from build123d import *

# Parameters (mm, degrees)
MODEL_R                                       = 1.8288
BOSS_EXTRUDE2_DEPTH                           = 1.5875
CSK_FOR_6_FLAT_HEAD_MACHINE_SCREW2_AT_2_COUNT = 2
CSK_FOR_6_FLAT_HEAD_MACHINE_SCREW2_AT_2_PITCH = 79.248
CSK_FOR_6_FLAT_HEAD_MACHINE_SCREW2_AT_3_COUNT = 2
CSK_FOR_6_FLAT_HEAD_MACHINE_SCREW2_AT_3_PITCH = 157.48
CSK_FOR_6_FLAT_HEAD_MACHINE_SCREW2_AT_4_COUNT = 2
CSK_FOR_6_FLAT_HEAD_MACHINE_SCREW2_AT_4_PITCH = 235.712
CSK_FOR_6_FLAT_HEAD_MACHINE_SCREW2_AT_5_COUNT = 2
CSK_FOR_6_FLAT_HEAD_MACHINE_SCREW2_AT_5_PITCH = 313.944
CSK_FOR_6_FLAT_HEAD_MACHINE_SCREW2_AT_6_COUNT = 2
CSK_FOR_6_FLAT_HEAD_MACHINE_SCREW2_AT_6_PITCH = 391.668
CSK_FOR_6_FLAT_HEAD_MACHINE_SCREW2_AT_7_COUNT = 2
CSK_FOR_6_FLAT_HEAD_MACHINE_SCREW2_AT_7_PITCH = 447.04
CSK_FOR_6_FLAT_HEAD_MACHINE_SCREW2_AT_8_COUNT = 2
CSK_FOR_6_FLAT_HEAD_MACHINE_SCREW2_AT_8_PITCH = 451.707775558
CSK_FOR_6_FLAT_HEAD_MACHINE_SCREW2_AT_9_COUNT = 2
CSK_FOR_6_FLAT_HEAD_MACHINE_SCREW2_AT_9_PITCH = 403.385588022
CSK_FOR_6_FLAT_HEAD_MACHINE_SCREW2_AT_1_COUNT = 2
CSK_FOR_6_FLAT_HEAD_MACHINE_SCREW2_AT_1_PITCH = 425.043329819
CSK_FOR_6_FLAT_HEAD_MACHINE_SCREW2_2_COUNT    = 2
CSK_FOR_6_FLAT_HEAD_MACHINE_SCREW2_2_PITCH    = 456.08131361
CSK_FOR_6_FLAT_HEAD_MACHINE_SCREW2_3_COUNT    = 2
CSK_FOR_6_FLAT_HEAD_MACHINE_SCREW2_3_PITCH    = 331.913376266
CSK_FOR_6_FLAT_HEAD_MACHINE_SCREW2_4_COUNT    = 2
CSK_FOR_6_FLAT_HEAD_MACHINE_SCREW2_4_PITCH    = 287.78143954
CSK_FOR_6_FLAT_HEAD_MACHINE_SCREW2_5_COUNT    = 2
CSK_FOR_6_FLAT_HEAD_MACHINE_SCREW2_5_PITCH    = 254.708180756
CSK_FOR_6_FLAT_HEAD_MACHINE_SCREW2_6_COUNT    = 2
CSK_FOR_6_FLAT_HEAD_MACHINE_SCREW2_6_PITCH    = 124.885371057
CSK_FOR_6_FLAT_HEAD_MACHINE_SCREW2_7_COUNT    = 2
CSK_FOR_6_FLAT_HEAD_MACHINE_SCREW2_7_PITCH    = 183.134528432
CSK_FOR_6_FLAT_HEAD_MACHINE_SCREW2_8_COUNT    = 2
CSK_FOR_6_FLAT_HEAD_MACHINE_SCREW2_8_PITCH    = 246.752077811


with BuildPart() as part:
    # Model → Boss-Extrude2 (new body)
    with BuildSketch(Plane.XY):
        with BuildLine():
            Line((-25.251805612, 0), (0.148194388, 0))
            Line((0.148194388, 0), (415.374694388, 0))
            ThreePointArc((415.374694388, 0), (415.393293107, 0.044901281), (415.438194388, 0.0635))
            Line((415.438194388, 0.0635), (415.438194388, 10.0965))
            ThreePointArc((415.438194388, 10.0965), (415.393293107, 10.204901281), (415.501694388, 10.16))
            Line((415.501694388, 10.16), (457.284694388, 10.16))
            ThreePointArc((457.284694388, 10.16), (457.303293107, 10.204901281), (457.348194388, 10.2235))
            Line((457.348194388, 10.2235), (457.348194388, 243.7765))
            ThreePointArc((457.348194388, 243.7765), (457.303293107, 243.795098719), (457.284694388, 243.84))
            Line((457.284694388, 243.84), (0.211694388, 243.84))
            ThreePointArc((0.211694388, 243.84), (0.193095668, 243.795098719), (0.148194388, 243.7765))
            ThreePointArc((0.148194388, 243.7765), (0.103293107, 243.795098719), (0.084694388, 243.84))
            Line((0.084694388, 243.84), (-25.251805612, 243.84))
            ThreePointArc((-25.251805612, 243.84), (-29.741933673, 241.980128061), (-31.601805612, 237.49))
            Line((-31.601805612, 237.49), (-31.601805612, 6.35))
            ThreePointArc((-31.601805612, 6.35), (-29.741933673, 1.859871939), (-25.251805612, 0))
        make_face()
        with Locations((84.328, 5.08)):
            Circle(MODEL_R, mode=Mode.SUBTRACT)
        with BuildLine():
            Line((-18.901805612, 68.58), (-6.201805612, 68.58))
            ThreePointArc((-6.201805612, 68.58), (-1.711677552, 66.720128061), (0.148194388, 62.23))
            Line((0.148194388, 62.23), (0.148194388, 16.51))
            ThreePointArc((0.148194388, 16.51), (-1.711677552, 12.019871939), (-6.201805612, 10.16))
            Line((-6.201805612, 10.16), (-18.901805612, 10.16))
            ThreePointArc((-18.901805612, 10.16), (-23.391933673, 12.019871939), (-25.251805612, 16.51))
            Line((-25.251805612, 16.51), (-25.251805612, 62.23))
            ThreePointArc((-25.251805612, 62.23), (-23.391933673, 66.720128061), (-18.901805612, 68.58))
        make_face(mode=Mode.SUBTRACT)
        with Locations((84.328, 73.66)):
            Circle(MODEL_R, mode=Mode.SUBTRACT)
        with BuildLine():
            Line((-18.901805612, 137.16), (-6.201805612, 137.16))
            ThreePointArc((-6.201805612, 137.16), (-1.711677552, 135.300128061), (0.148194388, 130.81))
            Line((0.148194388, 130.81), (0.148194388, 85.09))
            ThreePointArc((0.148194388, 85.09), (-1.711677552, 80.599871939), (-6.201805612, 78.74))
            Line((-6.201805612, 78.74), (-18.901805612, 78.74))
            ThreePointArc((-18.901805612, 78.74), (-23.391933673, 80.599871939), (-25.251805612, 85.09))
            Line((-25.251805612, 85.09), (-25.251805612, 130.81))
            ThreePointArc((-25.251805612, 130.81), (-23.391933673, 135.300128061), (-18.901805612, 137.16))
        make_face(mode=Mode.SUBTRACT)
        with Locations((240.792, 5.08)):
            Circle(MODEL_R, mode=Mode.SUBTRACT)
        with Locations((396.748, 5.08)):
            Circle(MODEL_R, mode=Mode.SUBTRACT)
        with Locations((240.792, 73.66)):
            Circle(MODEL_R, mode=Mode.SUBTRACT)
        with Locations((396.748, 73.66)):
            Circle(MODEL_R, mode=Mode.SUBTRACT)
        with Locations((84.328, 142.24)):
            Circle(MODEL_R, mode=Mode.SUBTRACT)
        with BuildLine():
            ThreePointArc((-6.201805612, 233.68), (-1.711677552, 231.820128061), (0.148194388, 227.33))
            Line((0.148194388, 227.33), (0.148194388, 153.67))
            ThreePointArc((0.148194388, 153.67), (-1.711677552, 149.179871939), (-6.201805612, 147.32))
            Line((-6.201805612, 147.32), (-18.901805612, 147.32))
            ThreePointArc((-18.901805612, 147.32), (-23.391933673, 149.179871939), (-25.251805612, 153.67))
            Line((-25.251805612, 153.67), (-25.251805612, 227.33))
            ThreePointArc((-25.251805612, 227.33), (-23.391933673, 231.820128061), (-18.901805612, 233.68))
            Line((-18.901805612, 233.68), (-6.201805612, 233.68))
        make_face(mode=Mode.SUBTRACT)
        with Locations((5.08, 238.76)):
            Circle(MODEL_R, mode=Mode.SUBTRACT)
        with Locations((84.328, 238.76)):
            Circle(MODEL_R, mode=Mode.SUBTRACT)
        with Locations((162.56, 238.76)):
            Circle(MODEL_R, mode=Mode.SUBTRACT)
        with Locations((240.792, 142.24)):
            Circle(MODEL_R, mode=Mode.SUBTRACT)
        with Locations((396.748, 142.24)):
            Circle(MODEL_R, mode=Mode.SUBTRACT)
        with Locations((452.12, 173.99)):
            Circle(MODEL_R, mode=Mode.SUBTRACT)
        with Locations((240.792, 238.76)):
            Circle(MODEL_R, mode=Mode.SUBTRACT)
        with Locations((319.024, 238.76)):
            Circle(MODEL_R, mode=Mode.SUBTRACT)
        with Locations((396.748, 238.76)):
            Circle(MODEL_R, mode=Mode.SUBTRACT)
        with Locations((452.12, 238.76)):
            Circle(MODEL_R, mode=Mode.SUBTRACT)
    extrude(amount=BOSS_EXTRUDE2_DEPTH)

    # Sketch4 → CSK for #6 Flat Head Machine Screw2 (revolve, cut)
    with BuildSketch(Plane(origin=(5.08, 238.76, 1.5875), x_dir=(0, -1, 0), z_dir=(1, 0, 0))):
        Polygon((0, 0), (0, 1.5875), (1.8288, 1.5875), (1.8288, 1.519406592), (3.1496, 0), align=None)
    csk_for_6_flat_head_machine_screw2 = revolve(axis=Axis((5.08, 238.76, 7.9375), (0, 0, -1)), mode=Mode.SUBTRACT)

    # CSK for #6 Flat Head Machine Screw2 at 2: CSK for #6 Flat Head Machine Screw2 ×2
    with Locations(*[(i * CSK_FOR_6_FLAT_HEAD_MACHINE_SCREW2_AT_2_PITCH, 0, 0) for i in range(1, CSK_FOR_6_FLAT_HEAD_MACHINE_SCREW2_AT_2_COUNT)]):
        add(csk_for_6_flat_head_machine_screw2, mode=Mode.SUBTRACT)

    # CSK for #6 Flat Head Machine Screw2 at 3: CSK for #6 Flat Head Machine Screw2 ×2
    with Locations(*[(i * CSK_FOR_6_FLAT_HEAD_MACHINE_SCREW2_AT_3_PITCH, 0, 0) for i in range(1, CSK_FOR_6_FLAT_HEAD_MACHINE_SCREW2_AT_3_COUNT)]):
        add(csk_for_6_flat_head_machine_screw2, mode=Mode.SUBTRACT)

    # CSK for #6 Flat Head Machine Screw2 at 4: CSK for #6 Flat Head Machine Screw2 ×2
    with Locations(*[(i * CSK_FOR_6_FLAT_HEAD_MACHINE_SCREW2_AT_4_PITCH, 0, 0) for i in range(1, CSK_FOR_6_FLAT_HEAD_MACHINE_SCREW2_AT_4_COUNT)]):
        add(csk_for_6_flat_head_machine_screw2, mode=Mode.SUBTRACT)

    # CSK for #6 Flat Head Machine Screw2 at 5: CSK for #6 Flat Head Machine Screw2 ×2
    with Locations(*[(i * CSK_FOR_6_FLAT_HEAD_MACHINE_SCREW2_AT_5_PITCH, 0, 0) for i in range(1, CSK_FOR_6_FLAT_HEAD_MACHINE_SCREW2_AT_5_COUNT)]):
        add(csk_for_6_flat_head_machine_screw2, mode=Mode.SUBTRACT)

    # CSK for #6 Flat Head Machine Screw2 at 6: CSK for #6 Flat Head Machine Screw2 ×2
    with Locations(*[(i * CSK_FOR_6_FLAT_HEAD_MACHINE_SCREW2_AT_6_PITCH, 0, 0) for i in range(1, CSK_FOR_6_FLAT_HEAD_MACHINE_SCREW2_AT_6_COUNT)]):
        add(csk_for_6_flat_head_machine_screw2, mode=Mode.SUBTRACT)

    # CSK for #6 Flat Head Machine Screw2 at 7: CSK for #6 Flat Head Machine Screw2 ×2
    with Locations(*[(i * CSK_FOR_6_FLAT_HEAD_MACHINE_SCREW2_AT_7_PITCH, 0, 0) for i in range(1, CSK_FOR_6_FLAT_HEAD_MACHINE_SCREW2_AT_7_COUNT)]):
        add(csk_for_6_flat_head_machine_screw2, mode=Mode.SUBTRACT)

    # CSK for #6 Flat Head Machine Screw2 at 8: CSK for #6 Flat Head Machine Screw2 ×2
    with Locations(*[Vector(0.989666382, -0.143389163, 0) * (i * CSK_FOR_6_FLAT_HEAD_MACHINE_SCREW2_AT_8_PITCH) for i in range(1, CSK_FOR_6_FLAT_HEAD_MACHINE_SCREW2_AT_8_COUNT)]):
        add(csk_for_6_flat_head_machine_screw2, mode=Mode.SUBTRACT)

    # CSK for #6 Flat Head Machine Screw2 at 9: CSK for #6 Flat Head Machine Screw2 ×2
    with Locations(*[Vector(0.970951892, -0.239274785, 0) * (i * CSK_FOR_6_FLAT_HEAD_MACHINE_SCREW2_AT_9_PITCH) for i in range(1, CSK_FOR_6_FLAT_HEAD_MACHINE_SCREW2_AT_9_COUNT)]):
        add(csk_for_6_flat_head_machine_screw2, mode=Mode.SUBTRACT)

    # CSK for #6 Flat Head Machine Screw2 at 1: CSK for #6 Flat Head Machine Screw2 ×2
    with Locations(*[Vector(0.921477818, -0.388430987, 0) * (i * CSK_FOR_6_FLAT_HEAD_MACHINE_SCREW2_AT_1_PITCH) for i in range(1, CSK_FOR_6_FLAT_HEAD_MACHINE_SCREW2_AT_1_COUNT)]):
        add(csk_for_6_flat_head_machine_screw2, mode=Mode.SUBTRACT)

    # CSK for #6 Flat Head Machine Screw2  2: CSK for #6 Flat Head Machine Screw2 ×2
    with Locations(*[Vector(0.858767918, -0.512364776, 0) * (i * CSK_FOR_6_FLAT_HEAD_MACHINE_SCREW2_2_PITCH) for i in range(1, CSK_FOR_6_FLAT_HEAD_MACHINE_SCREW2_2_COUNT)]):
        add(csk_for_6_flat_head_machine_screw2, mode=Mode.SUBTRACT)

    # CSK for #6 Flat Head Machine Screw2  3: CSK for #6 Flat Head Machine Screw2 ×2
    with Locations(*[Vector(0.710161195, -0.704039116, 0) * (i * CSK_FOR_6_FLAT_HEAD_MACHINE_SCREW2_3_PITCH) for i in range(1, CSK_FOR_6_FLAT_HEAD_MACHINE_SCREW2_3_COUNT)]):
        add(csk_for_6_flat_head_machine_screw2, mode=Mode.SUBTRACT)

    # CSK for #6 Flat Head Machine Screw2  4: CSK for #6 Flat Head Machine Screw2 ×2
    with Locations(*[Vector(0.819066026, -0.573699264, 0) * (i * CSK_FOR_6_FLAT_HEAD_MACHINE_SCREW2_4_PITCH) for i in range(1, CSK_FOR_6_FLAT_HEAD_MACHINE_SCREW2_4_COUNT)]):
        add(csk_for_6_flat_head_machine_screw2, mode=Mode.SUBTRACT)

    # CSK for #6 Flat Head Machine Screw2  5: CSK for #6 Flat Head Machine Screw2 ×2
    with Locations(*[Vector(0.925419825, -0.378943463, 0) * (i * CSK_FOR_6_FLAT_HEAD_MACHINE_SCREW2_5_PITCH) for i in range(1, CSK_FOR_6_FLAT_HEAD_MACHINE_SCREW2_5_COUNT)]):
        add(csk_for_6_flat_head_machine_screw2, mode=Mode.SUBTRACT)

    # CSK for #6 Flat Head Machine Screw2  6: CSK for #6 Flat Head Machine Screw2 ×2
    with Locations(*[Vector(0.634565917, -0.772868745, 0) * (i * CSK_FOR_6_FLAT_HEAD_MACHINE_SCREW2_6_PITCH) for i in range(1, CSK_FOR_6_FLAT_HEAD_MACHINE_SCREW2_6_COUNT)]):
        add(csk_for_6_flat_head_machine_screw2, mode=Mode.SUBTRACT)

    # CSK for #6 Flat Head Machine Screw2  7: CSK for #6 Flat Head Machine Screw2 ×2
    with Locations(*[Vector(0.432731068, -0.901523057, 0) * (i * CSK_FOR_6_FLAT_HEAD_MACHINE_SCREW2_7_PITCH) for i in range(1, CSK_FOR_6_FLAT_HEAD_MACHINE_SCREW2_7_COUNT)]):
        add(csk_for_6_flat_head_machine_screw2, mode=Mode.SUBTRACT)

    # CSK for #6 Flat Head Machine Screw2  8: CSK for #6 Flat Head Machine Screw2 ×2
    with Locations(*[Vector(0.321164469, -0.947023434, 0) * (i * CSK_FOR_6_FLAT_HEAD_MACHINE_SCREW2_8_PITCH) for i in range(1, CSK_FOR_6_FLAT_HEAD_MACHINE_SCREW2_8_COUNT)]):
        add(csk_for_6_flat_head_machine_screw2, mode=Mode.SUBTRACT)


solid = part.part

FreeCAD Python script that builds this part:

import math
import FreeCAD as App
import Part
import Sketcher
Q = App.Units.Quantity


def add_polygon(sketch, points):
    """Adds a closed chain of lines whose ends are joined by coincident constraints."""
    first, n = sketch.GeometryCount, len(points)
    for a, b in zip(points, points[1:] + points[:1]):
        sketch.addGeometry(Part.LineSegment(App.Vector(*a, 0), App.Vector(*b, 0)), False)
    for i in range(n):
        sketch.addConstraint(Sketcher.Constraint("Coincident", first + i, 2, first + (i + 1) % n, 1))

doc = App.newDocument("Part")
body = doc.addObject("PartDesign::Body", "Body")

sketch1 = body.newObject("Sketcher::SketchObject", "Sketch")
sketch1.AttachmentSupport = (doc.getObject("XY_Plane"), [""])
sketch1.MapMode = "FlatFace"
sketch1.addGeometry([
    Part.LineSegment(App.Vector(-25.251806, 0, 0), App.Vector(415.374694, 0, 0)),
    Part.ArcOfCircle(Part.Circle(App.Vector(415.438194, 0, 0), App.Vector(0, 0, 1), 0.0635), math.radians(89.999999), math.radians(180.000001)),
    Part.LineSegment(App.Vector(415.438194, 0.0635, 0), App.Vector(415.438194, 10.0965, 0)),
    Part.ArcOfCircle(Part.Circle(App.Vector(415.438194, 10.16, 0), App.Vector(0, 0, 1), 0.0635), math.radians(0), math.radians(270)),
    Part.LineSegment(App.Vector(415.501694, 10.16, 0), App.Vector(457.284694, 10.16, 0)),
    Part.ArcOfCircle(Part.Circle(App.Vector(457.348194, 10.16, 0), App.Vector(0, 0, 1), 0.0635), math.radians(89.999999), math.radians(180.000001)),
    Part.LineSegment(App.Vector(457.348194, 10.2235, 0), App.Vector(457.348194, 243.7765, 0)),
    Part.ArcOfCircle(Part.Circle(App.Vector(457.348194, 243.84, 0), App.Vector(0, 0, 1), 0.0635), math.radians(179.999999), math.radians(270.000001)),
    Part.LineSegment(App.Vector(457.284694, 243.84, 0), App.Vector(0.211694, 243.84, 0)),
    Part.ArcOfCircle(Part.Circle(App.Vector(0.148194, 243.84, 0), App.Vector(0, 0, 1), 0.0635), math.radians(-90), math.radians(0)),
    Part.ArcOfCircle(Part.Circle(App.Vector(0.148194, 243.84, 0), App.Vector(0, 0, 1), 0.0635), math.radians(179.999999), math.radians(270.000001)),
    Part.LineSegment(App.Vector(0.084694, 243.84, 0), App.Vector(-25.251806, 243.84, 0)),
    Part.ArcOfCircle(Part.Circle(App.Vector(-25.251806, 237.49, 0), App.Vector(0, 0, 1), 6.35), math.radians(90), math.radians(180)),
    Part.LineSegment(App.Vector(-31.601806, 237.49, 0), App.Vector(-31.601806, 6.35, 0)),
    Part.ArcOfCircle(Part.Circle(App.Vector(-25.251806, 6.35, 0), App.Vector(0, 0, 1), 6.35), math.radians(180), math.radians(270)),
    Part.Circle(App.Vector(84.328, 5.08, 0), App.Vector(0, 0, 1), 1.8288),
    Part.ArcOfCircle(Part.Circle(App.Vector(-18.901806, 62.23, 0), App.Vector(0, 0, 1), 6.35), math.radians(90), math.radians(180)),
    Part.LineSegment(App.Vector(-18.901806, 68.58, 0), App.Vector(-6.201806, 68.58, 0)),
    Part.ArcOfCircle(Part.Circle(App.Vector(-6.201806, 62.23, 0), App.Vector(0, 0, 1), 6.35), math.radians(0), math.radians(90)),
    Part.LineSegment(App.Vector(0.148194, 62.23, 0), App.Vector(0.148194, 16.51, 0)),
    Part.ArcOfCircle(Part.Circle(App.Vector(-6.201806, 16.51, 0), App.Vector(0, 0, 1), 6.35), math.radians(-90), math.radians(0)),
    Part.LineSegment(App.Vector(-6.201806, 10.16, 0), App.Vector(-18.901806, 10.16, 0)),
    Part.ArcOfCircle(Part.Circle(App.Vector(-18.901806, 16.51, 0), App.Vector(0, 0, 1), 6.35), math.radians(180), math.radians(270)),
    Part.LineSegment(App.Vector(-25.251806, 16.51, 0), App.Vector(-25.251806, 62.23, 0)),
    Part.Circle(App.Vector(84.328, 73.66, 0), App.Vector(0, 0, 1), 1.8288),
    Part.ArcOfCircle(Part.Circle(App.Vector(-18.901806, 130.81, 0), App.Vector(0, 0, 1), 6.35), math.radians(90), math.radians(180)),
    Part.LineSegment(App.Vector(-18.901806, 137.16, 0), App.Vector(-6.201806, 137.16, 0)),
    Part.ArcOfCircle(Part.Circle(App.Vector(-6.201806, 130.81, 0), App.Vector(0, 0, 1), 6.35), math.radians(0), math.radians(90)),
    Part.LineSegment(App.Vector(0.148194, 130.81, 0), App.Vector(0.148194, 85.09, 0)),
    Part.ArcOfCircle(Part.Circle(App.Vector(-6.201806, 85.09, 0), App.Vector(0, 0, 1), 6.35), math.radians(-90), math.radians(0)),
    Part.LineSegment(App.Vector(-6.201806, 78.74, 0), App.Vector(-18.901806, 78.74, 0)),
    Part.ArcOfCircle(Part.Circle(App.Vector(-18.901806, 85.09, 0), App.Vector(0, 0, 1), 6.35), math.radians(180), math.radians(270)),
    Part.LineSegment(App.Vector(-25.251806, 85.09, 0), App.Vector(-25.251806, 130.81, 0)),
    Part.Circle(App.Vector(240.792, 5.08, 0), App.Vector(0, 0, 1), 1.8288),
    Part.Circle(App.Vector(396.748, 5.08, 0), App.Vector(0, 0, 1), 1.8288),
    Part.Circle(App.Vector(240.792, 73.66, 0), App.Vector(0, 0, 1), 1.8288),
    Part.Circle(App.Vector(396.748, 73.66, 0), App.Vector(0, 0, 1), 1.8288),
    Part.Circle(App.Vector(84.328, 142.24, 0), App.Vector(0, 0, 1), 1.8288),
    Part.LineSegment(App.Vector(-18.901806, 233.68, 0), App.Vector(-6.201806, 233.68, 0)),
    Part.ArcOfCircle(Part.Circle(App.Vector(-6.201806, 227.33, 0), App.Vector(0, 0, 1), 6.35), math.radians(0), math.radians(90)),
    Part.LineSegment(App.Vector(0.148194, 227.33, 0), App.Vector(0.148194, 153.67, 0)),
    Part.ArcOfCircle(Part.Circle(App.Vector(-6.201806, 153.67, 0), App.Vector(0, 0, 1), 6.35), math.radians(-90), math.radians(0)),
    Part.LineSegment(App.Vector(-6.201806, 147.32, 0), App.Vector(-18.901806, 147.32, 0)),
    Part.ArcOfCircle(Part.Circle(App.Vector(-18.901806, 153.67, 0), App.Vector(0, 0, 1), 6.35), math.radians(180), math.radians(270)),
    Part.LineSegment(App.Vector(-25.251806, 153.67, 0), App.Vector(-25.251806, 227.33, 0)),
    Part.ArcOfCircle(Part.Circle(App.Vector(-18.901806, 227.33, 0), App.Vector(0, 0, 1), 6.35), math.radians(90), math.radians(180)),
    Part.Circle(App.Vector(5.08, 238.76, 0), App.Vector(0, 0, 1), 1.8288),
    Part.Circle(App.Vector(84.328, 238.76, 0), App.Vector(0, 0, 1), 1.8288),
    Part.Circle(App.Vector(162.56, 238.76, 0), App.Vector(0, 0, 1), 1.8288),
    Part.Circle(App.Vector(240.792, 142.24, 0), App.Vector(0, 0, 1), 1.8288),
    Part.Circle(App.Vector(396.748, 142.24, 0), App.Vector(0, 0, 1), 1.8288),
    Part.Circle(App.Vector(452.12, 173.99, 0), App.Vector(0, 0, 1), 1.8288),
    Part.Circle(App.Vector(240.792, 238.76, 0), App.Vector(0, 0, 1), 1.8288),
    Part.Circle(App.Vector(319.024, 238.76, 0), App.Vector(0, 0, 1), 1.8288),
    Part.Circle(App.Vector(396.748, 238.76, 0), App.Vector(0, 0, 1), 1.8288),
    Part.Circle(App.Vector(452.12, 238.76, 0), App.Vector(0, 0, 1), 1.8288),
], False)
sketch1.addConstraint([
    Sketcher.Constraint("Coincident", 0, 2, 1, 2),
    Sketcher.Constraint("Coincident", 1, 1, 2, 1),
    Sketcher.Constraint("Coincident", 2, 2, 3, 2),
    Sketcher.Constraint("Coincident", 3, 1, 4, 1),
    Sketcher.Constraint("Coincident", 4, 2, 5, 2),
    Sketcher.Constraint("Coincident", 5, 1, 6, 1),
    Sketcher.Constraint("Coincident", 6, 2, 7, 2),
    Sketcher.Constraint("Coincident", 7, 1, 8, 1),
    Sketcher.Constraint("Coincident", 8, 2, 9, 2),
    Sketcher.Constraint("Tangent", 9, 1, 10, 2),
    Sketcher.Constraint("Coincident", 10, 1, 11, 1),
    Sketcher.Constraint("Tangent", 11, 2, 12, 1),
    Sketcher.Constraint("Tangent", 12, 2, 13, 1),
    Sketcher.Constraint("Tangent", 13, 2, 14, 1),
    Sketcher.Constraint("Tangent", 14, 2, 0, 1),
    Sketcher.Constraint("Tangent", 16, 1, 17, 1),
    Sketcher.Constraint("Tangent", 17, 2, 18, 2),
    Sketcher.Constraint("Tangent", 18, 1, 19, 1),
    Sketcher.Constraint("Tangent", 19, 2, 20, 2),
    Sketcher.Constraint("Tangent", 20, 1, 21, 1),
    Sketcher.Constraint("Tangent", 21, 2, 22, 2),
    Sketcher.Constraint("Tangent", 22, 1, 23, 1),
    Sketcher.Constraint("Tangent", 23, 2, 16, 2),
    Sketcher.Constraint("Tangent", 25, 1, 26, 1),
    Sketcher.Constraint("Tangent", 26, 2, 27, 2),
    Sketcher.Constraint("Tangent", 27, 1, 28, 1),
    Sketcher.Constraint("Tangent", 28, 2, 29, 2),
    Sketcher.Constraint("Tangent", 29, 1, 30, 1),
    Sketcher.Constraint("Tangent", 30, 2, 31, 2),
    Sketcher.Constraint("Tangent", 31, 1, 32, 1),
    Sketcher.Constraint("Tangent", 32, 2, 25, 2),
    Sketcher.Constraint("Tangent", 38, 2, 39, 2),
    Sketcher.Constraint("Tangent", 39, 1, 40, 1),
    Sketcher.Constraint("Tangent", 40, 2, 41, 2),
    Sketcher.Constraint("Tangent", 41, 1, 42, 1),
    Sketcher.Constraint("Tangent", 42, 2, 43, 2),
    Sketcher.Constraint("Tangent", 43, 1, 44, 1),
    Sketcher.Constraint("Tangent", 44, 2, 45, 2),
    Sketcher.Constraint("Tangent", 45, 1, 38, 1),
    Sketcher.Constraint("Horizontal", 0),
    Sketcher.Constraint("Vertical", 2),
    Sketcher.Constraint("Horizontal", 4),
    Sketcher.Constraint("Vertical", 6),
    Sketcher.Constraint("Horizontal", 8),
    Sketcher.Constraint("Horizontal", 11),
    Sketcher.Constraint("Vertical", 13),
    Sketcher.Constraint("Horizontal", 17),
    Sketcher.Constraint("Vertical", 19),
    Sketcher.Constraint("Horizontal", 21),
    Sketcher.Constraint("Vertical", 23),
    Sketcher.Constraint("Horizontal", 26),
    Sketcher.Constraint("Vertical", 28),
    Sketcher.Constraint("Horizontal", 30),
    Sketcher.Constraint("Vertical", 32),
    Sketcher.Constraint("Horizontal", 38),
    Sketcher.Constraint("Vertical", 40),
    Sketcher.Constraint("Horizontal", 42),
    Sketcher.Constraint("Vertical", 44),
    Sketcher.Constraint("Equal", 1, 3),
    Sketcher.Constraint("Equal", 3, 5),
    Sketcher.Constraint("Equal", 5, 7),
    Sketcher.Constraint("Equal", 7, 9),
    Sketcher.Constraint("Equal", 9, 10),
    Sketcher.Constraint("Equal", 12, 14),
    Sketcher.Constraint("Equal", 14, 16),
    Sketcher.Constraint("Equal", 16, 18),
    Sketcher.Constraint("Equal", 18, 20),
    Sketcher.Constraint("Equal", 20, 22),
    Sketcher.Constraint("Equal", 15, 24),
    Sketcher.Constraint("Equal", 22, 25),
    Sketcher.Constraint("Equal", 25, 27),
    Sketcher.Constraint("Equal", 27, 29),
    Sketcher.Constraint("Equal", 29, 31),
    Sketcher.Constraint("Equal", 24, 33),
    Sketcher.Constraint("Equal", 33, 34),
    Sketcher.Constraint("Equal", 34, 35),
    Sketcher.Constraint("Equal", 35, 36),
    Sketcher.Constraint("Equal", 36, 37),
    Sketcher.Constraint("Equal", 31, 39),
    Sketcher.Constraint("Equal", 39, 41),
    Sketcher.Constraint("Equal", 41, 43),
    Sketcher.Constraint("Equal", 43, 45),
    Sketcher.Constraint("Equal", 37, 46),
    Sketcher.Constraint("Equal", 46, 47),
    Sketcher.Constraint("Equal", 47, 48),
    Sketcher.Constraint("Equal", 48, 49),
    Sketcher.Constraint("Equal", 49, 50),
    Sketcher.Constraint("Equal", 50, 51),
    Sketcher.Constraint("Equal", 51, 52),
    Sketcher.Constraint("Equal", 52, 53),
    Sketcher.Constraint("Equal", 53, 54),
    Sketcher.Constraint("Equal", 54, 55),
    Sketcher.Constraint("PointOnObject", 1, 3, -1),
    Sketcher.Constraint("PointOnObject", 0, 2, -1),
    Sketcher.Constraint("Horizontal", 3, 3, 5, 3),
    Sketcher.Constraint("Horizontal", 7, 3, 9, 3),
    Sketcher.Constraint("Horizontal", 15, 3, 33, 3),
    Sketcher.Constraint("Horizontal", 33, 3, 34, 3),
    Sketcher.Constraint("Horizontal", 24, 3, 35, 3),
    Sketcher.Constraint("Horizontal", 35, 3, 36, 3),
    Sketcher.Constraint("Horizontal", 46, 3, 47, 3),
    Sketcher.Constraint("Horizontal", 47, 3, 48, 3),
    Sketcher.Constraint("Horizontal", 37, 3, 49, 3),
    Sketcher.Constraint("Horizontal", 49, 3, 50, 3),
    Sketcher.Constraint("Horizontal", 48, 3, 52, 3),
    Sketcher.Constraint("Horizontal", 52, 3, 53, 3),
    Sketcher.Constraint("Horizontal", 53, 3, 54, 3),
    Sketcher.Constraint("Horizontal", 54, 3, 55, 3),
    Sketcher.Constraint("Horizontal", 5, 3, 3, 1),
    Sketcher.Constraint("Horizontal", 10, 3, 7, 1),
    Sketcher.Constraint("Horizontal", 8, 2, 10, 1),
    Sketcher.Constraint("Horizontal", 4, 2, 20, 1),
    Sketcher.Constraint("Vertical", 1, 3, 3, 3),
    Sketcher.Constraint("Vertical", 5, 3, 7, 3),
    Sketcher.Constraint("Vertical", 15, 3, 24, 3),
    Sketcher.Constraint("Vertical", 22, 3, 25, 3),
    Sketcher.Constraint("Vertical", 20, 3, 27, 3),
    Sketcher.Constraint("Vertical", 33, 3, 35, 3),
    Sketcher.Constraint("Vertical", 34, 3, 36, 3),
    Sketcher.Constraint("Vertical", 24, 3, 37, 3),
    Sketcher.Constraint("Vertical", 29, 3, 39, 3),
    Sketcher.Constraint("Vertical", 31, 3, 43, 3),
    Sketcher.Constraint("Vertical", 37, 3, 47, 3),
    Sketcher.Constraint("Vertical", 35, 3, 49, 3),
    Sketcher.Constraint("Vertical", 36, 3, 50, 3),
    Sketcher.Constraint("Vertical", 49, 3, 52, 3),
    Sketcher.Constraint("Vertical", 50, 3, 54, 3),
    Sketcher.Constraint("Vertical", 51, 3, 55, 3),
    Sketcher.Constraint("Vertical", 3, 3, 1, 1),
    Sketcher.Constraint("Vertical", 7, 3, 5, 1),
    Sketcher.Constraint("Vertical", 10, 3, 9, 1),
    Sketcher.Constraint("Vertical", 9, 1, 18, 1),
    Sketcher.Constraint("Vertical", 14, 2, 22, 1),
    Sketcher.Constraint("Equal", 23, 28),
    Sketcher.Constraint("Radius", 12, Q("0.25 in")),
    Sketcher.Constraint("Diameter", 15, Q("0.144 in")),
    Sketcher.Constraint("DistanceX", 17, 1, 17, 2, Q("0.5 in")),
    Sketcher.Constraint("DistanceY", 13, 2, 13, 1, Q("9.1 in")),
    Sketcher.Constraint("DistanceY", 19, 2, 19, 1, Q("1.8 in")),
    Sketcher.Constraint("DistanceY", 40, 2, 40, 1, Q("2.9 in")),
    Sketcher.Constraint("DistanceY", -1, 1, 3, 3, Q("0.4 in")),
    Sketcher.Constraint("DistanceY", -1, 1, 15, 3, Q("0.2 in")),
    Sketcher.Constraint("DistanceY", -1, 1, 24, 3, Q("2.9 in")),
    Sketcher.Constraint("DistanceY", -1, 1, 37, 3, Q("5.6 in")),
    Sketcher.Constraint("DistanceX", -1, 1, 46, 3, Q("0.2 in")),
    Sketcher.Constraint("DistanceY", -1, 1, 46, 3, Q("9.4 in")),
    Sketcher.Constraint("DistanceX", -1, 1, 48, 3, Q("6.4 in")),
    Sketcher.Constraint("DistanceX", -1, 1, 51, 3, Q("17.8 in")),
    Sketcher.Constraint("DistanceY", -1, 1, 25, 1, Q("5.4 in")),
    Sketcher.Constraint("DistanceY", -1, 1, 38, 2, Q("9.2 in")),
    Sketcher.Constraint("Radius", 1, Q("0.0025 in")),
    Sketcher.Constraint("DistanceX", 4, 1, 4, 2, Q("1.645 in")),
    Sketcher.Constraint("DistanceX", 8, 2, 8, 1, Q("17.995 in")),
    Sketcher.Constraint("DistanceX", -1, 1, 15, 3, Q("3.32 in")),
    Sketcher.Constraint("DistanceX", -1, 1, 33, 3, Q("9.48 in")),
    Sketcher.Constraint("DistanceX", -1, 1, 34, 3, Q("15.62 in")),
    Sketcher.Constraint("DistanceY", -1, 1, 51, 3, Q("6.85 in")),
    Sketcher.Constraint("DistanceX", -1, 1, 53, 3, Q("12.56 in")),
    Sketcher.Constraint("DistanceX", -1, 1, 1, 3, 415.438194),
])
pad1 = body.newObject("PartDesign::Pad", "Pad")
pad1.Profile = sketch1
pad1.Length = Q("0.0625 in")

sketch2 = body.newObject("Sketcher::SketchObject", "Sketch001")
sketch2.AttachmentSupport = (doc.getObject("YZ_Plane"), [""])
sketch2.MapMode = "FlatFace"
sketch2.AttachmentOffset = App.Placement(App.Vector(0, 0, 0.2 * 25.4), App.Rotation())
add_polygon(sketch2, [(238.76, 0), (238.76, 1.5875), (235.6104, 1.5875), (236.9312, 0.068093), (236.9312, 0)])
sketch2.addGeometry(Part.LineSegment(App.Vector(238.76, 1.5875, 0), App.Vector(238.76, 0, 0)), True)
sketch2.addConstraint([
    Sketcher.Constraint("Vertical", 0),
    Sketcher.Constraint("Horizontal", 1),
    Sketcher.Constraint("Vertical", 3),
    Sketcher.Constraint("Horizontal", 4),
    Sketcher.Constraint("Vertical", 5),
    Sketcher.Constraint("Coincident", 5, 1, 0, 2),
    Sketcher.Constraint("PointOnObject", 3, 2, -1),
    Sketcher.Constraint("PointOnObject", 5, 2, -1),
    Sketcher.Constraint("Angle", 2, Q("-49 deg")),
    Sketcher.Constraint("DistanceX", -1, 1, 0, 2, Q("9.4 in")),
    Sketcher.Constraint("DistanceX", 1, 2, 1, 1, Q("0.124 in")),
    Sketcher.Constraint("DistanceX", 4, 1, 4, 2, Q("0.072 in")),
    Sketcher.Constraint("DistanceY", 0, 1, 0, 2, Q("0.0625 in")),
])
groove = body.newObject("PartDesign::Groove", "Groove")
groove.Profile = sketch2
groove.ReferenceAxis = (sketch2, ["Axis0"])
groove.Angle = 360
doc.recompute()

linearpattern = body.newObject("PartDesign::LinearPattern", "LinearPattern")
linearpattern.Originals = [groove]
linearpattern.Direction = (doc.getObject("X_Axis"), [""])
linearpattern.Mode = "offset"
linearpattern.Offset = Q("3.12 in")
linearpattern.Occurrences = 2
body.Tip = linearpattern
doc.recompute()

linearpattern2 = body.newObject("PartDesign::LinearPattern", "LinearPattern001")
linearpattern2.Originals = [groove]
linearpattern2.Direction = (doc.getObject("X_Axis"), [""])
linearpattern2.Mode = "offset"
linearpattern2.Offset = Q("6.2 in")
linearpattern2.Occurrences = 2
body.Tip = linearpattern2
doc.recompute()

linearpattern3 = body.newObject("PartDesign::LinearPattern", "LinearPattern002")
linearpattern3.Originals = [groove]
linearpattern3.Direction = (doc.getObject("X_Axis"), [""])
linearpattern3.Mode = "offset"
linearpattern3.Offset = Q("9.28 in")
linearpattern3.Occurrences = 2
body.Tip = linearpattern3
doc.recompute()

linearpattern4 = body.newObject("PartDesign::LinearPattern", "LinearPattern003")
linearpattern4.Originals = [groove]
linearpattern4.Direction = (doc.getObject("X_Axis"), [""])
linearpattern4.Mode = "offset"
linearpattern4.Offset = Q("12.36 in")
linearpattern4.Occurrences = 2
body.Tip = linearpattern4
doc.recompute()

linearpattern5 = body.newObject("PartDesign::LinearPattern", "LinearPattern004")
linearpattern5.Originals = [groove]
linearpattern5.Direction = (doc.getObject("X_Axis"), [""])
linearpattern5.Mode = "offset"
linearpattern5.Offset = Q("15.42 in")
linearpattern5.Occurrences = 2
body.Tip = linearpattern5
doc.recompute()

linearpattern6 = body.newObject("PartDesign::LinearPattern", "LinearPattern005")
linearpattern6.Originals = [groove]
linearpattern6.Direction = (doc.getObject("X_Axis"), [""])
linearpattern6.Mode = "offset"
linearpattern6.Offset = Q("17.6 in")
linearpattern6.Occurrences = 2
body.Tip = linearpattern6
doc.recompute()

datumline = body.newObject("PartDesign::Line", "DatumLine")
datumline.Placement = App.Placement(App.Vector(0, 0, 0), App.Rotation(App.Vector(0, 0, 1), App.Vector(0.989666382, -0.143389163, 0)))
linearpattern7 = body.newObject("PartDesign::LinearPattern", "LinearPattern006")
linearpattern7.Originals = [groove]
linearpattern7.Direction = (datumline, [""])
linearpattern7.Mode = "offset"
linearpattern7.Offset = 451.707775
linearpattern7.Occurrences = 2
body.Tip = linearpattern7
doc.recompute()

datumline2 = body.newObject("PartDesign::Line", "DatumLine001")
datumline2.Placement = App.Placement(App.Vector(0, 0, 0), App.Rotation(App.Vector(0, 0, 1), App.Vector(0.970951892, -0.239274785, 0)))
linearpattern8 = body.newObject("PartDesign::LinearPattern", "LinearPattern007")
linearpattern8.Originals = [groove]
linearpattern8.Direction = (datumline2, [""])
linearpattern8.Mode = "offset"
linearpattern8.Offset = 403.385588
linearpattern8.Occurrences = 2
body.Tip = linearpattern8
doc.recompute()

datumline3 = body.newObject("PartDesign::Line", "DatumLine002")
datumline3.Placement = App.Placement(App.Vector(0, 0, 0), App.Rotation(App.Vector(0, 0, 1), App.Vector(0.921477818, -0.388430987, 0)))
linearpattern9 = body.newObject("PartDesign::LinearPattern", "LinearPattern008")
linearpattern9.Originals = [groove]
linearpattern9.Direction = (datumline3, [""])
linearpattern9.Mode = "offset"
linearpattern9.Offset = 425.04333
linearpattern9.Occurrences = 2
body.Tip = linearpattern9
doc.recompute()

datumline4 = body.newObject("PartDesign::Line", "DatumLine003")
datumline4.Placement = App.Placement(App.Vector(0, 0, 0), App.Rotation(App.Vector(0, 0, 1), App.Vector(0.858767918, -0.512364776, 0)))
linearpattern10 = body.newObject("PartDesign::LinearPattern", "LinearPattern009")
linearpattern10.Originals = [groove]
linearpattern10.Direction = (datumline4, [""])
linearpattern10.Mode = "offset"
linearpattern10.Offset = 456.081314
linearpattern10.Occurrences = 2
body.Tip = linearpattern10
doc.recompute()

datumline5 = body.newObject("PartDesign::Line", "DatumLine004")
datumline5.Placement = App.Placement(App.Vector(0, 0, 0), App.Rotation(App.Vector(0, 0, 1), App.Vector(0.710161195, -0.704039116, 0)))
linearpattern11 = body.newObject("PartDesign::LinearPattern", "LinearPattern010")
linearpattern11.Originals = [groove]
linearpattern11.Direction = (datumline5, [""])
linearpattern11.Mode = "offset"
linearpattern11.Offset = 331.913376
linearpattern11.Occurrences = 2
body.Tip = linearpattern11
doc.recompute()

datumline6 = body.newObject("PartDesign::Line", "DatumLine005")
datumline6.Placement = App.Placement(App.Vector(0, 0, 0), App.Rotation(App.Vector(0, 0, 1), App.Vector(0.819066026, -0.573699264, 0)))
linearpattern12 = body.newObject("PartDesign::LinearPattern", "LinearPattern011")
linearpattern12.Originals = [groove]
linearpattern12.Direction = (datumline6, [""])
linearpattern12.Mode = "offset"
linearpattern12.Offset = 287.78144
linearpattern12.Occurrences = 2
body.Tip = linearpattern12
doc.recompute()

datumline7 = body.newObject("PartDesign::Line", "DatumLine006")
datumline7.Placement = App.Placement(App.Vector(0, 0, 0), App.Rotation(App.Vector(0, 0, 1), App.Vector(0.925419825, -0.378943463, 0)))
linearpattern13 = body.newObject("PartDesign::LinearPattern", "LinearPattern012")
linearpattern13.Originals = [groove]
linearpattern13.Direction = (datumline7, [""])
linearpattern13.Mode = "offset"
linearpattern13.Offset = 254.708181
linearpattern13.Occurrences = 2
body.Tip = linearpattern13
doc.recompute()

datumline8 = body.newObject("PartDesign::Line", "DatumLine007")
datumline8.Placement = App.Placement(App.Vector(0, 0, 0), App.Rotation(App.Vector(0, 0, 1), App.Vector(0.634565917, -0.772868745, 0)))
linearpattern14 = body.newObject("PartDesign::LinearPattern", "LinearPattern013")
linearpattern14.Originals = [groove]
linearpattern14.Direction = (datumline8, [""])
linearpattern14.Mode = "offset"
linearpattern14.Offset = 124.885371
linearpattern14.Occurrences = 2
body.Tip = linearpattern14
doc.recompute()

datumline9 = body.newObject("PartDesign::Line", "DatumLine008")
datumline9.Placement = App.Placement(App.Vector(0, 0, 0), App.Rotation(App.Vector(0, 0, 1), App.Vector(0.432731068, -0.901523057, 0)))
linearpattern15 = body.newObject("PartDesign::LinearPattern", "LinearPattern014")
linearpattern15.Originals = [groove]
linearpattern15.Direction = (datumline9, [""])
linearpattern15.Mode = "offset"
linearpattern15.Offset = 183.134528
linearpattern15.Occurrences = 2
body.Tip = linearpattern15
doc.recompute()

datumline10 = body.newObject("PartDesign::Line", "DatumLine009")
datumline10.Placement = App.Placement(App.Vector(0, 0, 0), App.Rotation(App.Vector(0, 0, 1), App.Vector(0.321164469, -0.947023434, 0)))
linearpattern16 = body.newObject("PartDesign::LinearPattern", "LinearPattern015")
linearpattern16.Originals = [groove]
linearpattern16.Direction = (datumline10, [""])
linearpattern16.Mode = "offset"
linearpattern16.Offset = 246.752078
linearpattern16.Occurrences = 2
body.Tip = linearpattern16

doc.recompute()
